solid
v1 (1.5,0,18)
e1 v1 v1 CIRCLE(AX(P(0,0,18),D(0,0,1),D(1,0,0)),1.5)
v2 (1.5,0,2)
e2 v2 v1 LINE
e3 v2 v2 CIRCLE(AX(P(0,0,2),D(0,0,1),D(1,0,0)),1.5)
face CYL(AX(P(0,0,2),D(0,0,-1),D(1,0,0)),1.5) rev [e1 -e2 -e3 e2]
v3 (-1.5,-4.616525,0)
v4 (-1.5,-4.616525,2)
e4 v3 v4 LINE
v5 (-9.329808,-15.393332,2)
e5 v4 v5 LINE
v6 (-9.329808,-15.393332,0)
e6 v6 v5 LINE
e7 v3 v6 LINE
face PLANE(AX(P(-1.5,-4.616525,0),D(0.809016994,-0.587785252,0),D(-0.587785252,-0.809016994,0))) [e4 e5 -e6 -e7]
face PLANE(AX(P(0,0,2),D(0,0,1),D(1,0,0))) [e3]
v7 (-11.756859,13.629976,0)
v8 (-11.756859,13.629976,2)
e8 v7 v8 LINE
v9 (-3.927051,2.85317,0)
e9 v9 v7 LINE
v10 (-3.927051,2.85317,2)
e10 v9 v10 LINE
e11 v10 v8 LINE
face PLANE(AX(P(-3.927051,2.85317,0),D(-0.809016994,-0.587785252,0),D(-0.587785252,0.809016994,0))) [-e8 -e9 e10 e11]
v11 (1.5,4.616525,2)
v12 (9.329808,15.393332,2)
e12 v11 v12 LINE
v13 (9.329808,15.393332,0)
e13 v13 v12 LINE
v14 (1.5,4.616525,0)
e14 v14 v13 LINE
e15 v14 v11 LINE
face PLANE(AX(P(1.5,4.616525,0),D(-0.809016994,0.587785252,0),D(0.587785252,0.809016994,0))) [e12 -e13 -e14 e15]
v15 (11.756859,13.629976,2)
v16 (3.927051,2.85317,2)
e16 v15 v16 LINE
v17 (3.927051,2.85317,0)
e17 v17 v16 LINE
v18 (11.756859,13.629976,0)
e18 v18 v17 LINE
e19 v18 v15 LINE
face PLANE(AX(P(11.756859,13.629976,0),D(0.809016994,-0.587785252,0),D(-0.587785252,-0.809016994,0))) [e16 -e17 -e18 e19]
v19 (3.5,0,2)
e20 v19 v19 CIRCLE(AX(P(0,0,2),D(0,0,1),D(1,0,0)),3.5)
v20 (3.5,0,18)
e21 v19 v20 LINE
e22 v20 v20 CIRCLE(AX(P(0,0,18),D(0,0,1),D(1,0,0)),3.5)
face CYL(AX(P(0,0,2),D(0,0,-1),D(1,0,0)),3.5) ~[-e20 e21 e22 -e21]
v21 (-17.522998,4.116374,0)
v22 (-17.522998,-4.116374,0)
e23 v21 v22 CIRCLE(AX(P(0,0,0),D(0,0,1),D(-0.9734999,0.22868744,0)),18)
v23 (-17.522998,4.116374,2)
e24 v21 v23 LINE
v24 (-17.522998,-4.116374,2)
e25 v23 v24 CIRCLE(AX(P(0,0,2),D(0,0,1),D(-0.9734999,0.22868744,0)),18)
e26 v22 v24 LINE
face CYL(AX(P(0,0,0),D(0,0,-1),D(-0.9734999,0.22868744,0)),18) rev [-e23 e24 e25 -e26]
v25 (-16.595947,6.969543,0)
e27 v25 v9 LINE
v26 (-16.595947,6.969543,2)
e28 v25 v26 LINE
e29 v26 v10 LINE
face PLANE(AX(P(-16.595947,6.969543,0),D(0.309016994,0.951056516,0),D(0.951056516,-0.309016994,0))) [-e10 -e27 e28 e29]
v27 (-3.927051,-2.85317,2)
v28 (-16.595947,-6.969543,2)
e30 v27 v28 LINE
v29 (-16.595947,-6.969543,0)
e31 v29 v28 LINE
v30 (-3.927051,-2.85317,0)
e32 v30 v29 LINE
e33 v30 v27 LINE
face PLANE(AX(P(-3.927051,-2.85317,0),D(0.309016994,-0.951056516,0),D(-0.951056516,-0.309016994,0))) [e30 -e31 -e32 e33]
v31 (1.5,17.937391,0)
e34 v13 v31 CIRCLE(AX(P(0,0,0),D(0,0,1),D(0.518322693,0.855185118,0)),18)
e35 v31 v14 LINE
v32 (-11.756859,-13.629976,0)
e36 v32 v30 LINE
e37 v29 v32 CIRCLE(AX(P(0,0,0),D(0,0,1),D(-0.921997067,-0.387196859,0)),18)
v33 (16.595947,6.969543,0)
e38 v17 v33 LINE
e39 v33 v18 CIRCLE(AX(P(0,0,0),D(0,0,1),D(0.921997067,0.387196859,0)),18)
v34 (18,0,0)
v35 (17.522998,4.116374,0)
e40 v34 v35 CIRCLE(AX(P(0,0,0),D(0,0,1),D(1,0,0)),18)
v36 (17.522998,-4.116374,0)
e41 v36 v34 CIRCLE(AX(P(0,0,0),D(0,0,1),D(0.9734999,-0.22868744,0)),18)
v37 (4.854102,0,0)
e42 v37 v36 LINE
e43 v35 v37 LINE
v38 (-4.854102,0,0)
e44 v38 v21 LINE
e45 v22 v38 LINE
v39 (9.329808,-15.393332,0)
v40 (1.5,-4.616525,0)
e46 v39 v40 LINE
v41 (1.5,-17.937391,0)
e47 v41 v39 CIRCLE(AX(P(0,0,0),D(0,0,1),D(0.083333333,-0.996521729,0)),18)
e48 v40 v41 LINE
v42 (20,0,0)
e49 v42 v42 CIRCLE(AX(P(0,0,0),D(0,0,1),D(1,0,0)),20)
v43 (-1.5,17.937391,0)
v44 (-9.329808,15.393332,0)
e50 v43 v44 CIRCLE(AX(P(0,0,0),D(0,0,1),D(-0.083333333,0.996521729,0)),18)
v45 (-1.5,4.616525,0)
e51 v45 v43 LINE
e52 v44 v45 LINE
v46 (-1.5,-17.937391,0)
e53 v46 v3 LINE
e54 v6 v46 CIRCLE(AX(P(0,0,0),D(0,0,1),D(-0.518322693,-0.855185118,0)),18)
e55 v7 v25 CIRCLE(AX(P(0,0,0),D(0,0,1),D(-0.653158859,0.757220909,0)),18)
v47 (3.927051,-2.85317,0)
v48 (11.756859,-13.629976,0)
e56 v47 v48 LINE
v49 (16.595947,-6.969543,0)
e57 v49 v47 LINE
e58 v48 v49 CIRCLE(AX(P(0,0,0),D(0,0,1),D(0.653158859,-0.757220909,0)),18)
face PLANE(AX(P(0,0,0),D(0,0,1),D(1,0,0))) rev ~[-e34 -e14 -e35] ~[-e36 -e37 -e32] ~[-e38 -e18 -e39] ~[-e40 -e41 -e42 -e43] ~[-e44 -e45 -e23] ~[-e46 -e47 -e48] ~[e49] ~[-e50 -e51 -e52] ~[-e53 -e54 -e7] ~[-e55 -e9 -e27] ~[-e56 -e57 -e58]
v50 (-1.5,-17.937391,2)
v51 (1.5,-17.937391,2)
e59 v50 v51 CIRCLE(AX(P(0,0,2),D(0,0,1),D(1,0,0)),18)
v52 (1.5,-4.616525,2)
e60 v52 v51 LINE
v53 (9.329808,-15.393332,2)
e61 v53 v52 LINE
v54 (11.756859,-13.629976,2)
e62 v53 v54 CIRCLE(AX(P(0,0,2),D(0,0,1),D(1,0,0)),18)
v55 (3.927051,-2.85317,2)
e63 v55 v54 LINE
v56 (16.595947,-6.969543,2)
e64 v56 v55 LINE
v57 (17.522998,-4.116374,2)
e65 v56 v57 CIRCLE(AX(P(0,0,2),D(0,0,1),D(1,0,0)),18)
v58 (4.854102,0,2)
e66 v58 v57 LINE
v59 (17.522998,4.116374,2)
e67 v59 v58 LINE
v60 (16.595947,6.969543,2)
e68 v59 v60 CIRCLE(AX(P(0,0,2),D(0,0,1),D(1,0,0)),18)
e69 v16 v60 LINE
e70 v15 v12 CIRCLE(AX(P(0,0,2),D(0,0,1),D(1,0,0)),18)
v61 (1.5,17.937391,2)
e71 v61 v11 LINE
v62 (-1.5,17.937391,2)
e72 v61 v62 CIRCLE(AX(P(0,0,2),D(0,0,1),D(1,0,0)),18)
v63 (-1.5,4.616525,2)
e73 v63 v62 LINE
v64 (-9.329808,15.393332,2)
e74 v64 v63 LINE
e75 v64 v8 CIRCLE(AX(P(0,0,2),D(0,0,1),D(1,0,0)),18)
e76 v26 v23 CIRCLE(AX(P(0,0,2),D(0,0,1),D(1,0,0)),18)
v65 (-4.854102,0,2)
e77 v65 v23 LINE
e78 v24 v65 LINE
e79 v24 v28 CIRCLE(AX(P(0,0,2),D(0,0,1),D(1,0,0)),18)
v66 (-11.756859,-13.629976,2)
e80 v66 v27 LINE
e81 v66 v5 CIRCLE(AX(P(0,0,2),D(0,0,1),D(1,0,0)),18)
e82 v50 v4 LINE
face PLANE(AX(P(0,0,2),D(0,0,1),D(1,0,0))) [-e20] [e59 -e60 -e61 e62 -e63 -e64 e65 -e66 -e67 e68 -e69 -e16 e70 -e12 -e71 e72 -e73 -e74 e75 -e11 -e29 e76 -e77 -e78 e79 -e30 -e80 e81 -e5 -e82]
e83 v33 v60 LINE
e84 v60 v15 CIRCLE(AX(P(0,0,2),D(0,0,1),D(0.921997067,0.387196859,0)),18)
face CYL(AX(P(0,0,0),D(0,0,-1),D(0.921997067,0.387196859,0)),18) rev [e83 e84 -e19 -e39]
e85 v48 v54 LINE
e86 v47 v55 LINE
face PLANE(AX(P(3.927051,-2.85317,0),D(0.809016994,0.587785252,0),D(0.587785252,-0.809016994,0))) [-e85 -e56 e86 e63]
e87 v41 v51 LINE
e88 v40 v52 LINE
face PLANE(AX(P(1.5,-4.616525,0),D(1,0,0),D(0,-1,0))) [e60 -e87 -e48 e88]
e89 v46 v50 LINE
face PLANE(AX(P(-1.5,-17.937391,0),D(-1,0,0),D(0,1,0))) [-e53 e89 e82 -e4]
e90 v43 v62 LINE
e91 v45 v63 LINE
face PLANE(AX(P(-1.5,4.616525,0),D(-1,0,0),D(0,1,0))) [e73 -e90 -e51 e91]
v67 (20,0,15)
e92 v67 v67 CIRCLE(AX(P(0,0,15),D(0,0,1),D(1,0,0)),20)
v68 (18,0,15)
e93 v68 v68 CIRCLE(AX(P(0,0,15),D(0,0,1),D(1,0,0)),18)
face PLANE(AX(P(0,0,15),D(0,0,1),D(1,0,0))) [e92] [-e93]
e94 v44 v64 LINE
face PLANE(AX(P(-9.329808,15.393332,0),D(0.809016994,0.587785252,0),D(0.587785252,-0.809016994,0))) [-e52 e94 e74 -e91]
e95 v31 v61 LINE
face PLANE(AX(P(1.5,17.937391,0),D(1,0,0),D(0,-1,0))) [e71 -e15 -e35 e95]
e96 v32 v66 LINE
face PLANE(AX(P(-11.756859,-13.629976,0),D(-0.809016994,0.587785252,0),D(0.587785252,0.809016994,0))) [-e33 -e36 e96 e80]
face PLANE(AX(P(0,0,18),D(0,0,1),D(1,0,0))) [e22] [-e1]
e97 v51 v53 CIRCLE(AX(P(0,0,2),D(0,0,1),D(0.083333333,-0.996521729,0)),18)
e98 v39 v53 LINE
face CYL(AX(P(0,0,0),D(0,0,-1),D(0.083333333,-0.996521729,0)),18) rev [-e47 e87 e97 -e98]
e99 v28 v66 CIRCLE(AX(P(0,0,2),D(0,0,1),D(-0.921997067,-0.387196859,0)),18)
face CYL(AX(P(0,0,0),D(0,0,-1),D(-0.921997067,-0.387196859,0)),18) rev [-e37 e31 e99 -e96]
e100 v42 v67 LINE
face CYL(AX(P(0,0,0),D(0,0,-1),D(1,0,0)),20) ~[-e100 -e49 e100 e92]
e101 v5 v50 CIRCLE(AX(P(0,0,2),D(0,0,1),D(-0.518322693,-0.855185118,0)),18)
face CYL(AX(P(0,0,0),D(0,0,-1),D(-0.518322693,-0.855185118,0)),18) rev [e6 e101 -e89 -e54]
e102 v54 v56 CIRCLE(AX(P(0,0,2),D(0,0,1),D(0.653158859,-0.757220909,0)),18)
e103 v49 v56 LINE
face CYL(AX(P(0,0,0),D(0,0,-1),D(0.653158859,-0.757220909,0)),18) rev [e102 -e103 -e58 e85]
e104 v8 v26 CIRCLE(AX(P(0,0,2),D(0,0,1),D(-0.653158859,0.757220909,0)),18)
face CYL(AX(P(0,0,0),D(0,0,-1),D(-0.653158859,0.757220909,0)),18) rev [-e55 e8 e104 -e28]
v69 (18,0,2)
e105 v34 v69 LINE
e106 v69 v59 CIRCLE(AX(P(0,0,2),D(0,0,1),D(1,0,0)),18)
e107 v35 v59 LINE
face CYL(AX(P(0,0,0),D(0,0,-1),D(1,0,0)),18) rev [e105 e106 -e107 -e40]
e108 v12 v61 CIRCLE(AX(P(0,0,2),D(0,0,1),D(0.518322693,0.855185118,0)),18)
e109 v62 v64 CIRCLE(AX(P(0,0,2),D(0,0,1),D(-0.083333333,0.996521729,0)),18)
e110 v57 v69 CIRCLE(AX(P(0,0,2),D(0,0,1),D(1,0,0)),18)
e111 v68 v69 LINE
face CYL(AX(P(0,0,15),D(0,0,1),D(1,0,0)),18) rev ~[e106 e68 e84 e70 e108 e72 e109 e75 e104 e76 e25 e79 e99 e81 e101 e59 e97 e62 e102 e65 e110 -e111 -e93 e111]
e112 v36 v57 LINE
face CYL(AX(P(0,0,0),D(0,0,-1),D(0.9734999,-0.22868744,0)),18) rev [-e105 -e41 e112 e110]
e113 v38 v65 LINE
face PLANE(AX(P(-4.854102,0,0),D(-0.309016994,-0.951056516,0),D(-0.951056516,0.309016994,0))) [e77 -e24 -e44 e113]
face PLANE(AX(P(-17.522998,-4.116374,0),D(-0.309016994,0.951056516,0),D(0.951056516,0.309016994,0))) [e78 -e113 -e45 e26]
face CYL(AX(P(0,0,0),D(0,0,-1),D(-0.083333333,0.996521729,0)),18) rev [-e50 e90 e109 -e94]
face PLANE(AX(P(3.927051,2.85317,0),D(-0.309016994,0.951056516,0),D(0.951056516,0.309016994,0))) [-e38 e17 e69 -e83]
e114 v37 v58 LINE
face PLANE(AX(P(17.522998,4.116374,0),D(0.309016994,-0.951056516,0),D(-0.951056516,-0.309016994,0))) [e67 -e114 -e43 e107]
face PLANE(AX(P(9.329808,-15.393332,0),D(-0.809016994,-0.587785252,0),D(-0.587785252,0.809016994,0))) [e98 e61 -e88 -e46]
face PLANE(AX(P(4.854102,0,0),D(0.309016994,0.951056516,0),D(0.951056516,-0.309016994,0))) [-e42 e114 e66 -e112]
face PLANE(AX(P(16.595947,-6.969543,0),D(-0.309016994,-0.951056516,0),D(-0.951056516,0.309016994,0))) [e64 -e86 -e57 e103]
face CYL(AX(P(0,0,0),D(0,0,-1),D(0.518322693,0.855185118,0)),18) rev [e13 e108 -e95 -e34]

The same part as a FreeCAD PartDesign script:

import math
import FreeCAD as App
import Part
import Sketcher
Q = App.Units.Quantity

doc = App.newDocument("Part")
body = doc.addObject("PartDesign::Body", "Body")

# Sketch on XY plane
sketch1 = body.newObject("Sketcher::SketchObject", "Sketch")
sketch1.AttachmentSupport = (doc.getObject("XY_Plane"), [""])
sketch1.MapMode = "FlatFace"
sketch1.addGeometry(Part.Circle(App.Vector(0, 0, 0), App.Vector(0, 0, 1), 20), False)
sketch1.addConstraint(Sketcher.Constraint("Coincident", 0, 3, -1, 1))
sketch1.addConstraint(Sketcher.Constraint("Diameter", 0, 40.0))
pad1 = body.newObject("PartDesign::Pad", "Pad")
pad1.Profile = sketch1
pad1.Length = 15

# Sketch on XY plane
sketch2 = body.newObject("Sketcher::SketchObject", "Sketch001")
sketch2.AttachmentSupport = (doc.getObject("XY_Plane"), [""])
sketch2.MapMode = "FlatFace"
sketch2.AttachmentOffset = App.Placement(App.Vector(0, 0, 15), App.Rotation())
sketch2.addGeometry(Part.Circle(App.Vector(0, 0, 0), App.Vector(0, 0, 1), 18), False)
sketch2.addConstraint(Sketcher.Constraint("Coincident", 0, 3, -1, 1))
sketch2.addConstraint(Sketcher.Constraint("Diameter", 0, 36.0))
pocket1 = body.newObject("PartDesign::Pocket", "Pocket")
pocket1.Profile = sketch2
pocket1.Length = 13

# Sketch on XY plane
sketch3 = body.newObject("Sketcher::SketchObject", "Sketch002")
sketch3.AttachmentSupport = (doc.getObject("XY_Plane"), [""])
sketch3.MapMode = "FlatFace"
sketch3.AttachmentOffset = App.Placement(App.Vector(0, 0, 2), App.Rotation())
sketch3.addGeometry(Part.Circle(App.Vector(0, 0, 0), App.Vector(0, 0, 1), 3.5), False)
sketch3.addGeometry(Part.Circle(App.Vector(0, 0, 0), App.Vector(0, 0, 1), 1.5), False)
sketch3.addConstraint(Sketcher.Constraint("Coincident", 0, 3, -1, 1))
sketch3.addConstraint(Sketcher.Constraint("Coincident", 1, 3, -1, 1))
sketch3.addConstraint(Sketcher.Constraint("Diameter", 0, 7.0))
sketch3.addConstraint(Sketcher.Constraint("Diameter", 1, 3.0))
pad2 = body.newObject("PartDesign::Pad", "Pad001")
pad2.Profile = sketch3
pad2.Length = 16

# Sketch on XY plane
sketch4 = body.newObject("Sketcher::SketchObject", "Sketch003")
sketch4.AttachmentSupport = (doc.getObject("XY_Plane"), [""])
sketch4.MapMode = "FlatFace"
sketch4.addGeometry(Part.ArcOfCircle(Part.Circle(App.Vector(0, 0, 0), App.Vector(0, 0, 1), 18), math.radians(-121), math.radians(-95)), False)
sketch4.addGeometry(Part.LineSegment(App.Vector(-1.5, -17.9, 0), App.Vector(-1.5, -4.6, 0)), False)
sketch4.addGeometry(Part.LineSegment(App.Vector(-1.5, -4.6, 0), App.Vector(-9.3, -15.4, 0)), False)
sketch4.addGeometry(Part.LineSegment(App.Vector(9.3, -15.4, 0), App.Vector(1.5, -4.6, 0)), False)
sketch4.addGeometry(Part.LineSegment(App.Vector(1.5, -4.6, 0), App.Vector(1.5, -17.9, 0)), False)
sketch4.addGeometry(Part.ArcOfCircle(Part.Circle(App.Vector(0, 0, 0), App.Vector(0, 0, 1), 18), math.radians(-85), math.radians(-59)), False)
sketch4.addGeometry(Part.LineSegment(App.Vector(16.6, -7, 0), App.Vector(3.9, -2.9, 0)), False)
sketch4.addGeometry(Part.LineSegment(App.Vector(3.9, -2.9, 0), App.Vector(11.8, -13.6, 0)), False)
sketch4.addGeometry(Part.ArcOfCircle(Part.Circle(App.Vector(0, 0, 0), App.Vector(0, 0, 1), 18), math.radians(-49), math.radians(-23)), False)
sketch4.addGeometry(Part.LineSegment(App.Vector(17.5, 4.1, 0), App.Vector(4.9, 0, 0)), False)
sketch4.addGeometry(Part.LineSegment(App.Vector(4.9, 0, 0), App.Vector(17.5, -4.1, 0)), False)
sketch4.addGeometry(Part.ArcOfCircle(Part.Circle(App.Vector(0, 0, 0), App.Vector(0, 0, 1), 18), math.radians(-13.22), math.radians(0)), False)
sketch4.addGeometry(Part.ArcOfCircle(Part.Circle(App.Vector(0, 0, 0), App.Vector(0, 0, 1), 18), math.radians(0), math.radians(13.22)), False)
sketch4.addGeometry(Part.LineSegment(App.Vector(11.8, 13.6, 0), App.Vector(3.9, 2.9, 0)), False)
sketch4.addGeometry(Part.LineSegment(App.Vector(3.9, 2.9, 0), App.Vector(16.6, 7, 0)), False)
sketch4.addGeometry(Part.ArcOfCircle(Part.Circle(App.Vector(0, 0, 0), App.Vector(0, 0, 1), 18), math.radians(23), math.radians(49)), False)
sketch4.addGeometry(Part.LineSegment(App.Vector(1.5, 17.9, 0), App.Vector(1.5, 4.6, 0)), False)
sketch4.addGeometry(Part.LineSegment(App.Vector(1.5, 4.6, 0), App.Vector(9.3, 15.4, 0)), False)
sketch4.addGeometry(Part.ArcOfCircle(Part.Circle(App.Vector(0, 0, 0), App.Vector(0, 0, 1), 18), math.radians(59), math.radians(85)), False)
sketch4.addGeometry(Part.LineSegment(App.Vector(-1.5, 4.6, 0), App.Vector(-1.5, 17.9, 0)), False)
sketch4.addGeometry(Part.ArcOfCircle(Part.Circle(App.Vector(0, 0, 0), App.Vector(0, 0, 1), 18), math.radians(95), math.radians(121)), False)
sketch4.addGeometry(Part.LineSegment(App.Vector(-9.3, 15.4, 0), App.Vector(-1.5, 4.6, 0)), False)
sketch4.addGeometry(Part.LineSegment(App.Vector(-3.9, 2.9, 0), App.Vector(-11.8, 13.6, 0)), False)
sketch4.addGeometry(Part.ArcOfCircle(Part.Circle(App.Vector(0, 0, 0), App.Vector(0, 0, 1), 18), math.radians(131), math.radians(157)), False)
sketch4.addGeometry(Part.LineSegment(App.Vector(-16.6, 7, 0), App.Vector(-3.9, 2.9, 0)), False)
sketch4.addGeometry(Part.LineSegment(App.Vector(-4.9, 0, 0), App.Vector(-17.5, 4.1, 0)), False)
sketch4.addGeometry(Part.ArcOfCircle(Part.Circle(App.Vector(0, 0, 0), App.Vector(0, 0, 1), 18), math.radians(167), math.radians(193)), False)
sketch4.addGeometry(Part.LineSegment(App.Vector(-17.5, -4.1, 0), App.Vector(-4.9, 0, 0)), False)
sketch4.addGeometry(Part.ArcOfCircle(Part.Circle(App.Vector(0, 0, 0), App.Vector(0, 0, 1), 18), math.radians(-157), math.radians(-131)), False)
sketch4.addGeometry(Part.LineSegment(App.Vector(-11.8, -13.6, 0), App.Vector(-3.9, -2.9, 0)), False)
sketch4.addGeometry(Part.LineSegment(App.Vector(-3.9, -2.9, 0), App.Vector(-16.6, -7, 0)), False)
sketch4.addConstraint(Sketcher.Constraint("Coincident", 0, 2, 1, 1))
sketch4.addConstraint(Sketcher.Constraint("Coincident", 1, 2, 2, 1))
sketch4.addConstraint(Sketcher.Constraint("Coincident", 2, 2, 0, 1))
sketch4.addConstraint(Sketcher.Constraint("Coincident", 3, 2, 4, 1))
sketch4.addConstraint(Sketcher.Constraint("Coincident", 4, 2, 5, 1))
sketch4.addConstraint(Sketcher.Constraint("Coincident", 5, 2, 3, 1))
sketch4.addConstraint(Sketcher.Constraint("Coincident", 6, 2, 7, 1))
sketch4.addConstraint(Sketcher.Constraint("Coincident", 7, 2, 8, 1))
sketch4.addConstraint(Sketcher.Constraint("Coincident", 8, 2, 6, 1))
sketch4.addConstraint(Sketcher.Constraint("Coincident", 9, 2, 10, 1))
sketch4.addConstraint(Sketcher.Constraint("Coincident", 10, 2, 11, 1))
sketch4.addConstraint(Sketcher.Constraint("Tangent", 11, 2, 12, 1))
sketch4.addConstraint(Sketcher.Constraint("Coincident", 12, 2, 9, 1))
sketch4.addConstraint(Sketcher.Constraint("Coincident", 13, 2, 14, 1))
sketch4.addConstraint(Sketcher.Constraint("Coincident", 14, 2, 15, 1))
sketch4.addConstraint(Sketcher.Constraint("Coincident", 15, 2, 13, 1))
sketch4.addConstraint(Sketcher.Constraint("Coincident", 16, 2, 17, 1))
sketch4.addConstraint(Sketcher.Constraint("Coincident", 17, 2, 18, 1))
sketch4.addConstraint(Sketcher.Constraint("Coincident", 18, 2, 16, 1))
sketch4.addConstraint(Sketcher.Constraint("Coincident", 19, 2, 20, 1))
sketch4.addConstraint(Sketcher.Constraint("Coincident", 20, 2, 21, 1))
sketch4.addConstraint(Sketcher.Constraint("Coincident", 21, 2, 19, 1))
sketch4.addConstraint(Sketcher.Constraint("Coincident", 22, 2, 23, 1))
sketch4.addConstraint(Sketcher.Constraint("Coincident", 23, 2, 24, 1))
sketch4.addConstraint(Sketcher.Constraint("Coincident", 24, 2, 22, 1))
sketch4.addConstraint(Sketcher.Constraint("Coincident", 25, 2, 26, 1))
sketch4.addConstraint(Sketcher.Constraint("Coincident", 26, 2, 27, 1))
sketch4.addConstraint(Sketcher.Constraint("Coincident", 27, 2, 25, 1))
sketch4.addConstraint(Sketcher.Constraint("Coincident", 28, 2, 29, 1))
sketch4.addConstraint(Sketcher.Constraint("Coincident", 29, 2, 30, 1))
sketch4.addConstraint(Sketcher.Constraint("Coincident", 30, 2, 28, 1))
sketch4.addConstraint(Sketcher.Constraint("Vertical", 1))
sketch4.addConstraint(Sketcher.Constraint("Vertical", 4))
sketch4.addConstraint(Sketcher.Constraint("Vertical", 16))
sketch4.addConstraint(Sketcher.Constraint("Vertical", 19))
sketch4.addConstraint(Sketcher.Constraint("Coincident", 0, 3, -1, 1))
sketch4.addConstraint(Sketcher.Constraint("Coincident", 5, 3, -1, 1))
sketch4.addConstraint(Sketcher.Constraint("Coincident", 8, 3, -1, 1))
sketch4.addConstraint(Sketcher.Constraint("Coincident", 11, 3, -1, 1))
sketch4.addConstraint(Sketcher.Constraint("Coincident", 15, 3, -1, 1))
sketch4.addConstraint(Sketcher.Constraint("Coincident", 18, 3, -1, 1))
sketch4.addConstraint(Sketcher.Constraint("Coincident", 20, 3, -1, 1))
sketch4.addConstraint(Sketcher.Constraint("Coincident", 23, 3, -1, 1))
sketch4.addConstraint(Sketcher.Constraint("Coincident", 26, 3, -1, 1))
sketch4.addConstraint(Sketcher.Constraint("Coincident", 28, 3, -1, 1))
sketch4.addConstraint(Sketcher.Constraint("Equal", 0, 5))
sketch4.addConstraint(Sketcher.Constraint("Equal", 5, 8))
sketch4.addConstraint(Sketcher.Constraint("Equal", 8, 11))
sketch4.addConstraint(Sketcher.Constraint("Equal", 11, 12))
sketch4.addConstraint(Sketcher.Constraint("Equal", 12, 15))
sketch4.addConstraint(Sketcher.Constraint("Equal", 15, 18))
sketch4.addConstraint(Sketcher.Constraint("Equal", 18, 20))
sketch4.addConstraint(Sketcher.Constraint("Equal", 20, 23))
sketch4.addConstraint(Sketcher.Constraint("Equal", 23, 26))
sketch4.addConstraint(Sketcher.Constraint("Equal", 26, 28))
sketch4.addConstraint(Sketcher.Constraint("Symmetric", 1, 2, 16, 2, -1, 1))
sketch4.addConstraint(Sketcher.Constraint("Symmetric", 3, 2, 21, 2, -1, 1))
sketch4.addConstraint(Sketcher.Constraint("Symmetric", 6, 2, 24, 2, -1, 1))
sketch4.addConstraint(Sketcher.Constraint("Symmetric", 9, 2, 27, 2, -1, 1))
sketch4.addConstraint(Sketcher.Constraint("Symmetric", 13, 2, 29, 2, -1, 1))
sketch4.addConstraint(Sketcher.Constraint("Symmetric", 1, 2, 3, 2, -2))
sketch4.addConstraint(Sketcher.Constraint("Symmetric", 13, 2, 24, 2, -2))
sketch4.addConstraint(Sketcher.Constraint("PointOnObject", 9, 2, -1))
sketch4.addConstraint(Sketcher.Constraint("PointOnObject", 11, 2, -1))
sketch4.addConstraint(Sketcher.Constraint("Parallel", 3, 7))
sketch4.addConstraint(Sketcher.Constraint("Parallel", 6, 10))
sketch4.addConstraint(Sketcher.Constraint("Parallel", 2, 13))
sketch4.addConstraint(Sketcher.Constraint("Parallel", 9, 14))
sketch4.addConstraint(Sketcher.Constraint("Parallel", 13, 17))
sketch4.addConstraint(Sketcher.Constraint("Parallel", 7, 21))
sketch4.addConstraint(Sketcher.Constraint("Parallel", 21, 22))
sketch4.addConstraint(Sketcher.Constraint("Parallel", 10, 24))
sketch4.addConstraint(Sketcher.Constraint("Parallel", 24, 25))
sketch4.addConstraint(Sketcher.Constraint("Parallel", 14, 27))
sketch4.addConstraint(Sketcher.Constraint("Parallel", 17, 29))
sketch4.addConstraint(Sketcher.Constraint("Parallel", 27, 30))
sketch4.addConstraint(Sketcher.Constraint("Horizontal", 2, 2, 5, 2))
sketch4.addConstraint(Sketcher.Constraint("Horizontal", 14, 2, 23, 2))
sketch4.addConstraint(Sketcher.Constraint("Equal", 3, 6))
sketch4.addConstraint(Sketcher.Constraint("Equal", 6, 7))
sketch4.addConstraint(Sketcher.Constraint("Equal", 7, 9))
sketch4.addConstraint(Sketcher.Constraint("Radius", 0, 18.0))
sketch4.addConstraint(Sketcher.Constraint("Angle", 2, Q("-126 deg")))
sketch4.addConstraint(Sketcher.Constraint("Angle", 6, Q("162 deg")))
sketch4.addConstraint(Sketcher.Constraint("DistanceX", 1, 2, 3, 2, 3.0))
sketch4.addConstraint(Sketcher.Constraint("DistanceX", -1, 1, 10, 2, 17.522998))
pocket2 = body.newObject("PartDesign::Pocket", "Pocket001")
pocket2.Profile = sketch4
pocket2.Length = 2
pocket2.Reversed = True

doc.recompute()
